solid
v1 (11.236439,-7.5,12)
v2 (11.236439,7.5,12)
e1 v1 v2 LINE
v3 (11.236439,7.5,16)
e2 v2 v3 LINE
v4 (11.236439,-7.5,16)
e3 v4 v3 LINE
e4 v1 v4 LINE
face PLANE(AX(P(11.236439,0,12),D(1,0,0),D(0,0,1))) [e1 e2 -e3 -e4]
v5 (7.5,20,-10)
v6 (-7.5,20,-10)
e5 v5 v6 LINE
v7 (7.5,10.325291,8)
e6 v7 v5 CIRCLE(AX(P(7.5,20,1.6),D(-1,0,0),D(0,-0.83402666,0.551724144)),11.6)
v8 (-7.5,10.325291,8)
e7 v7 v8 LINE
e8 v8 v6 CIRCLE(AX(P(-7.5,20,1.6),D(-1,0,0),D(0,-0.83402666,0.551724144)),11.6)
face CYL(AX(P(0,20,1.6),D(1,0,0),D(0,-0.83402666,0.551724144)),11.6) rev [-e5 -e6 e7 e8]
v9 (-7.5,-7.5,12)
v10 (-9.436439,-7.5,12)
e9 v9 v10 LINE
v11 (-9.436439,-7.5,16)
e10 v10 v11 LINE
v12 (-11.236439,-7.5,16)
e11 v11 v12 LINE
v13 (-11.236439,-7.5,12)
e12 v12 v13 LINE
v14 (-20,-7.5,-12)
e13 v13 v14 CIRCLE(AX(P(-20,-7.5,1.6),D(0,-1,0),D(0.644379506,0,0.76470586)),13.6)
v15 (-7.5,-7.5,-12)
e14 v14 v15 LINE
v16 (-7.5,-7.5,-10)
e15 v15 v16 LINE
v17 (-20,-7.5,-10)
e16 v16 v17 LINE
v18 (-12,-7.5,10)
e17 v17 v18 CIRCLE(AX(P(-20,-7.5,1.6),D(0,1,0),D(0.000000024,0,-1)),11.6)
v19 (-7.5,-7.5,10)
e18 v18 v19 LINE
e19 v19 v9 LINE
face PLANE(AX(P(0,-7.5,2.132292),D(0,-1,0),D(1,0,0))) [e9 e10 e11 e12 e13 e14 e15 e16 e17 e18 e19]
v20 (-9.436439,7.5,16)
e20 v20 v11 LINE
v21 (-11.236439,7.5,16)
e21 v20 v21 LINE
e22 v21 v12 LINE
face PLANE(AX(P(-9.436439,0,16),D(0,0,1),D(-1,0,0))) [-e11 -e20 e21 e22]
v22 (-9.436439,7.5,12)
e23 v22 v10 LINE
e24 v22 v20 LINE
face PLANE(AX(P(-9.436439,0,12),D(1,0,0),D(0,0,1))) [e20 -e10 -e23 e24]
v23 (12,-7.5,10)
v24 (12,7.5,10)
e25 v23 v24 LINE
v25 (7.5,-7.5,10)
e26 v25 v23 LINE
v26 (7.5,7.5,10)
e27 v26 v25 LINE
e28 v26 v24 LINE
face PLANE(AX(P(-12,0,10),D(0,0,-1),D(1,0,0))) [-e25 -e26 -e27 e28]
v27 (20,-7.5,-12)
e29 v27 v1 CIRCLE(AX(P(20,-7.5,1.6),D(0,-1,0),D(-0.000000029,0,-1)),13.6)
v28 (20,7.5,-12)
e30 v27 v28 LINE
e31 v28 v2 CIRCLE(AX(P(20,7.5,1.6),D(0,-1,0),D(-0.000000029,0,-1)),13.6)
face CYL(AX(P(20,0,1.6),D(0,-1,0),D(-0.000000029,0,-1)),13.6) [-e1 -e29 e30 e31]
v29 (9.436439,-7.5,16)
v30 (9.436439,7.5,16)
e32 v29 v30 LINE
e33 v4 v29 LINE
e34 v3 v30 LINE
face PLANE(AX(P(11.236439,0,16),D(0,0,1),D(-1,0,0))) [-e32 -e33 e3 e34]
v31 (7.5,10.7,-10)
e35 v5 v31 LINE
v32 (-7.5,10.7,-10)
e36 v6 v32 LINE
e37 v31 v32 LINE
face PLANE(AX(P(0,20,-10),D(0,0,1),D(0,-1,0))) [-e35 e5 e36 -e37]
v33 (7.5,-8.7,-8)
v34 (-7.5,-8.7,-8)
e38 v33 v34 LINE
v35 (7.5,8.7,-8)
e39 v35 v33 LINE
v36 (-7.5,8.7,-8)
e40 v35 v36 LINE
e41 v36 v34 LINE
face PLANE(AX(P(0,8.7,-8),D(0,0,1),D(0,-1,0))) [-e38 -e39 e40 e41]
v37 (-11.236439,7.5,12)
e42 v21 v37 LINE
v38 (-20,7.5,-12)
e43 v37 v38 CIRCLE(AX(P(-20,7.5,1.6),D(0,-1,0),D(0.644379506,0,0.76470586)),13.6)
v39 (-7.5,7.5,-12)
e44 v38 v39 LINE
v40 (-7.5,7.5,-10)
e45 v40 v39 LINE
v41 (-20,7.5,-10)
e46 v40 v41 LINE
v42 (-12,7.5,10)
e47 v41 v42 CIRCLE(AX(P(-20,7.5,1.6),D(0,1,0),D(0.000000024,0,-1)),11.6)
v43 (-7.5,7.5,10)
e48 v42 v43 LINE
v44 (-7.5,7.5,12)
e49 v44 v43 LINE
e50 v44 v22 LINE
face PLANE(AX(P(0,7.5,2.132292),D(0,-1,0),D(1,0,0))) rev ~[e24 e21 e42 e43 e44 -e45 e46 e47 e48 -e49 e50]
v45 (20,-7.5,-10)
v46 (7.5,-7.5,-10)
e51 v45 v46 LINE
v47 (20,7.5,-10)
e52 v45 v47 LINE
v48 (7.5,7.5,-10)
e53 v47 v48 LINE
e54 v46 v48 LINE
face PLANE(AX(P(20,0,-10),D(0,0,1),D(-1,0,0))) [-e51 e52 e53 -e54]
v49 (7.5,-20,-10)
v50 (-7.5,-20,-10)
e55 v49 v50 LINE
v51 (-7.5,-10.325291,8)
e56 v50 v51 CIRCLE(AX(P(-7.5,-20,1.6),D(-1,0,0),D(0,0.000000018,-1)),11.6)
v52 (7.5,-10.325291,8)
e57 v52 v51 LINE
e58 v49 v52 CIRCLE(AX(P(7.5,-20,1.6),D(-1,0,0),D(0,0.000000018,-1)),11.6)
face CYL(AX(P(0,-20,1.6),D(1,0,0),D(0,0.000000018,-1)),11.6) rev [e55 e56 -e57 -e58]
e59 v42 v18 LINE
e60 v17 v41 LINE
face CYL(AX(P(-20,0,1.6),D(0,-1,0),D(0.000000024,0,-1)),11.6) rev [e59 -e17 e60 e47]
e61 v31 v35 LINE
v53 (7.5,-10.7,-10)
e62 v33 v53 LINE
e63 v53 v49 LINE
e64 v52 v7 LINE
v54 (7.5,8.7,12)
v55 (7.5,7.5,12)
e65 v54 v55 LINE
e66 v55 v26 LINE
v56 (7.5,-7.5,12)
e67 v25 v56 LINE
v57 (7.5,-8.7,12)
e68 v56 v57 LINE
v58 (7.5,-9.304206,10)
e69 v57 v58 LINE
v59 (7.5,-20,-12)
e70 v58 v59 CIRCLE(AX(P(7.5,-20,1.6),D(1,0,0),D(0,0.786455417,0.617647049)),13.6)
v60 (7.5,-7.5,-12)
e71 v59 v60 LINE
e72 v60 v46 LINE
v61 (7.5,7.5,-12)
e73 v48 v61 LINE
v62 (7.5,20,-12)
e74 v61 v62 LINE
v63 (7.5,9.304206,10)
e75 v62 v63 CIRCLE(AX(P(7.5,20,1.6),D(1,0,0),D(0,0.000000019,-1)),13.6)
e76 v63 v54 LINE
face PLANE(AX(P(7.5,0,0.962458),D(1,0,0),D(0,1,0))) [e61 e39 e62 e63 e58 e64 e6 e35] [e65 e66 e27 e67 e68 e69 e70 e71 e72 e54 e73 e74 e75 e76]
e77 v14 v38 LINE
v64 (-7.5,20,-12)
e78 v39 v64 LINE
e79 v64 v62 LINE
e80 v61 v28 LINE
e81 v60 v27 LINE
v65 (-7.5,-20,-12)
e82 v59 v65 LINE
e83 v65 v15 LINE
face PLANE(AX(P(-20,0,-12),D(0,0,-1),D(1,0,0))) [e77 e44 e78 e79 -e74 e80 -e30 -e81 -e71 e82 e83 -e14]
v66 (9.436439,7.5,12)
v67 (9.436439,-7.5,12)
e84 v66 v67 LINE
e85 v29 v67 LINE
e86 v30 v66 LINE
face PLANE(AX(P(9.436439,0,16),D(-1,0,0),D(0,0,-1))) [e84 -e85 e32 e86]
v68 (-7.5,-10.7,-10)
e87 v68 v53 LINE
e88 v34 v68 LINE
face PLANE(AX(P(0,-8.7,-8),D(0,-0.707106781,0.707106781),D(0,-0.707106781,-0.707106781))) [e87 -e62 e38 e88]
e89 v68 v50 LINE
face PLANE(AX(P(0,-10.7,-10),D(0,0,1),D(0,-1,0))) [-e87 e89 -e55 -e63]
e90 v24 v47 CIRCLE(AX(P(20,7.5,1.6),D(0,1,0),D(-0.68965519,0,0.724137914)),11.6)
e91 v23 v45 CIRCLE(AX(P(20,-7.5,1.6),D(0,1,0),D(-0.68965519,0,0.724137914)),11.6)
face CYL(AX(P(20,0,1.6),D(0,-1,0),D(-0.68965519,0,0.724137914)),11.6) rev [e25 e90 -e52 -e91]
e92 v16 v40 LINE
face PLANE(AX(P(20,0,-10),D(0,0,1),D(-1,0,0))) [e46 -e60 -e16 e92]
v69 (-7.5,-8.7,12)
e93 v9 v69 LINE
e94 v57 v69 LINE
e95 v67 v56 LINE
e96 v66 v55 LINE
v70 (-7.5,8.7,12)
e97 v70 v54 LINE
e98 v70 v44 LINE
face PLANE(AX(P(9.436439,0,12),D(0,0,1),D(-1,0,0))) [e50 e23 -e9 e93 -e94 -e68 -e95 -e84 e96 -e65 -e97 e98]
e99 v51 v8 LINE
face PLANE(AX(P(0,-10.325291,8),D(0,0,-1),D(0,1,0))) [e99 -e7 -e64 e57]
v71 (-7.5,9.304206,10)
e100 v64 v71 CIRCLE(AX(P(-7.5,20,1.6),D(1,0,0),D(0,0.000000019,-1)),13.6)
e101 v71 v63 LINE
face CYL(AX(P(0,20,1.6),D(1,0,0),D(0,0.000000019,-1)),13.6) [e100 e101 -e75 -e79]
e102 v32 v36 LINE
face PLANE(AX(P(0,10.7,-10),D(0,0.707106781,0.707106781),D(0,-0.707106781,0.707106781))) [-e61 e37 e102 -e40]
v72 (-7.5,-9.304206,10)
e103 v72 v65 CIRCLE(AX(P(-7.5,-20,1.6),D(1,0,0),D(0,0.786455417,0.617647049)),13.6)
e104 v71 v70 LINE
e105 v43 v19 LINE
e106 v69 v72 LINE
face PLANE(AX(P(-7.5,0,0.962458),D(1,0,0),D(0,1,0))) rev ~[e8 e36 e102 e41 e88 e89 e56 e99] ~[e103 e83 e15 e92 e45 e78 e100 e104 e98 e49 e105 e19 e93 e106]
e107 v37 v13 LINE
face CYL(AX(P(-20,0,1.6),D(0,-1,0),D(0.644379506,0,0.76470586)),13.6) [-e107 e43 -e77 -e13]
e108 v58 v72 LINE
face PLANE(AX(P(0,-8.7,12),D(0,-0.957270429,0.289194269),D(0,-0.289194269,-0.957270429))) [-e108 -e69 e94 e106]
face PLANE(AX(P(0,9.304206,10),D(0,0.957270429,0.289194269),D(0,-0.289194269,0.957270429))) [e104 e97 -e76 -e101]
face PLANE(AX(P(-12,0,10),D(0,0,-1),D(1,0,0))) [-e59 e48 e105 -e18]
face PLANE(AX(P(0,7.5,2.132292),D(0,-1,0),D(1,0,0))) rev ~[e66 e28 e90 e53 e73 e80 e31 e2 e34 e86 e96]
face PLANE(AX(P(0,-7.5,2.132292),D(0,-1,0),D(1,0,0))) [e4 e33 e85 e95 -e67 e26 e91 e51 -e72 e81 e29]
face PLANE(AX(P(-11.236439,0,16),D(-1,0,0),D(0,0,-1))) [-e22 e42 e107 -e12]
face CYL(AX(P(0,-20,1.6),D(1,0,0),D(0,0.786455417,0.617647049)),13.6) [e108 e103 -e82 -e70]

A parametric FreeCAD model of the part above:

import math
import FreeCAD as App
import Part
import Sketcher

doc = App.newDocument("Part")
body = doc.addObject("PartDesign::Body", "Body")

# Sketch on XZ plane
sketch1 = body.newObject("Sketcher::SketchObject", "Sketch")
sketch1.AttachmentSupport = (doc.getObject("XZ_Plane"), [""])
sketch1.MapMode = "FlatFace"
sketch1.addGeometry([
    Part.LineSegment(App.Vector(9.4, 16, 0), App.Vector(9.4, 12, 0)),  # 0
    Part.LineSegment(App.Vector(9.4, 12, 0), App.Vector(-9.4, 12, 0)),  # 1
    Part.LineSegment(App.Vector(-9.4, 12, 0), App.Vector(-9.4, 16, 0)),  # 2
    Part.LineSegment(App.Vector(-9.4, 16, 0), App.Vector(-11.2, 16, 0)),  # 3
    Part.LineSegment(App.Vector(-11.2, 16, 0), App.Vector(-11.2, 12, 0)),  # 4
    Part.ArcOfCircle(Part.Circle(App.Vector(-20, 1.6, 0), App.Vector(0, 0, 1), 13.6), math.radians(50), math.radians(270)),  # 5
    Part.LineSegment(App.Vector(-20, -12, 0), App.Vector(20, -12, 0)),  # 6
    Part.ArcOfCircle(Part.Circle(App.Vector(20, 1.6, 0), App.Vector(0, 0, 1), 13.6), math.radians(-90), math.radians(130)),  # 7
    Part.LineSegment(App.Vector(11.2, 12, 0), App.Vector(11.2, 16, 0)),  # 8
    Part.LineSegment(App.Vector(11.2, 16, 0), App.Vector(9.4, 16, 0)),  # 9
    Part.ArcOfCircle(Part.Circle(App.Vector(-20, 1.6, 0), App.Vector(0, 0, 1), 11.6), math.radians(46), math.radians(270)),  # 10
    Part.LineSegment(App.Vector(-12, 10, 0), App.Vector(12, 10, 0)),  # 11
    Part.ArcOfCircle(Part.Circle(App.Vector(20, 1.6, 0), App.Vector(0, 0, 1), 11.6), math.radians(-90), math.radians(134)),  # 12
    Part.LineSegment(App.Vector(20, -10, 0), App.Vector(-20, -10, 0)),  # 13
], False)
sketch1.addConstraint([
    Sketcher.Constraint("Coincident", 0, 2, 1, 1),
    Sketcher.Constraint("Coincident", 1, 2, 2, 1),
    Sketcher.Constraint("Coincident", 2, 2, 3, 1),
    Sketcher.Constraint("Coincident", 3, 2, 4, 1),
    Sketcher.Constraint("Coincident", 4, 2, 5, 1),
    Sketcher.Constraint("Tangent", 5, 2, 6, 1),
    Sketcher.Constraint("Tangent", 6, 2, 7, 1),
    Sketcher.Constraint("Coincident", 7, 2, 8, 1),
    Sketcher.Constraint("Coincident", 8, 2, 9, 1),
    Sketcher.Constraint("Coincident", 9, 2, 0, 1),
    Sketcher.Constraint("Coincident", 10, 1, 11, 1),
    Sketcher.Constraint("Coincident", 11, 2, 12, 2),
    Sketcher.Constraint("Tangent", 12, 1, 13, 1),
    Sketcher.Constraint("Tangent", 13, 2, 10, 2),
    Sketcher.Constraint("Vertical", 0),
    Sketcher.Constraint("Horizontal", 1),
    Sketcher.Constraint("Vertical", 2),
    Sketcher.Constraint("Horizontal", 3),
    Sketcher.Constraint("Vertical", 4),
    Sketcher.Constraint("Horizontal", 6),
    Sketcher.Constraint("Vertical", 8),
    Sketcher.Constraint("Horizontal", 9),
    Sketcher.Constraint("Horizontal", 11),
    Sketcher.Constraint("Horizontal", 13),
    Sketcher.Constraint("Coincident", 10, 3, 5, 3),
    Sketcher.Constraint("Coincident", 12, 3, 7, 3),
    Sketcher.Constraint("Equal", 5, 7),
    Sketcher.Constraint("Symmetric", 4, 2, 7, 2, -2),
    Sketcher.Constraint("Symmetric", 2, 2, 9, 2, -2),
    Sketcher.Constraint("Horizontal", 1, 2, 4, 2),
    Sketcher.Constraint("Radius", 5, 13.6),
    Sketcher.Constraint("Radius", 10, 11.6),
    Sketcher.Constraint("DistanceX", 6, 1, 6, 2, 40.0),
    Sketcher.Constraint("DistanceX", 11, 1, 11, 2, 24.0),
    Sketcher.Constraint("DistanceY", 0, 2, 0, 1, 4.0),
    Sketcher.Constraint("DistanceX", 3, 2, 3, 1, 1.8),
    Sketcher.Constraint("DistanceY", -1, 1, 0, 2, 12.0),
    Sketcher.Constraint("DistanceY", 5, 2, -1, 1, 12.0),
])
pad1 = body.newObject("PartDesign::Pad", "Pad")
pad1.Profile = sketch1
pad1.Length = 15
pad1.Midplane = True

# Sketch on YZ plane
sketch2 = body.newObject("Sketcher::SketchObject", "Sketch001")
sketch2.AttachmentSupport = (doc.getObject("YZ_Plane"), [""])
sketch2.MapMode = "FlatFace"
sketch2.addGeometry([
    Part.LineSegment(App.Vector(-7.5, -10, 0), App.Vector(7.5, -10, 0)),  # 0
    Part.LineSegment(App.Vector(7.5, -10, 0), App.Vector(7.5, -12, 0)),  # 1
    Part.LineSegment(App.Vector(7.5, -12, 0), App.Vector(20, -12, 0)),  # 2
    Part.ArcOfCircle(Part.Circle(App.Vector(20, 1.6, 0), App.Vector(0, 0, 1), 13.6), math.radians(-90), math.radians(142)),  # 3
    Part.LineSegment(App.Vector(9.3, 10, 0), App.Vector(8.7, 12, 0)),  # 4
    Part.LineSegment(App.Vector(8.7, 12, 0), App.Vector(7.5, 12, 0)),  # 5
    Part.LineSegment(App.Vector(7.5, 12, 0), App.Vector(7.5, 10, 0)),  # 6
    Part.LineSegment(App.Vector(7.5, 10, 0), App.Vector(-7.5, 10, 0)),  # 7
    Part.LineSegment(App.Vector(-7.5, 10, 0), App.Vector(-7.5, 12, 0)),  # 8
    Part.LineSegment(App.Vector(-7.5, 12, 0), App.Vector(-8.7, 12, 0)),  # 9
    Part.LineSegment(App.Vector(-8.7, 12, 0), App.Vector(-9.3, 10, 0)),  # 10
    Part.ArcOfCircle(Part.Circle(App.Vector(-20, 1.6, 0), App.Vector(0, 0, 1), 13.6), math.radians(38), math.radians(270)),  # 11
    Part.LineSegment(App.Vector(-20, -12, 0), App.Vector(-7.5, -12, 0)),  # 12
    Part.LineSegment(App.Vector(-7.5, -12, 0), App.Vector(-7.5, -10, 0)),  # 13
    Part.LineSegment(App.Vector(-8.7, -8, 0), App.Vector(-10.7, -10, 0)),  # 14
    Part.LineSegment(App.Vector(-10.7, -10, 0), App.Vector(-20, -10, 0)),  # 15
    Part.ArcOfCircle(Part.Circle(App.Vector(-20, 1.6, 0), App.Vector(0, 0, 1), 11.6), math.radians(33), math.radians(270)),  # 16
    Part.LineSegment(App.Vector(-10.3, 8, 0), App.Vector(10.3, 8, 0)),  # 17
    Part.ArcOfCircle(Part.Circle(App.Vector(20, 1.6, 0), App.Vector(0, 0, 1), 11.6), math.radians(-90), math.radians(147)),  # 18
    Part.LineSegment(App.Vector(20, -10, 0), App.Vector(10.7, -10, 0)),  # 19
    Part.LineSegment(App.Vector(10.7, -10, 0), App.Vector(8.7, -8, 0)),  # 20
    Part.LineSegment(App.Vector(8.7, -8, 0), App.Vector(-8.7, -8, 0)),  # 21
], False)
sketch2.addConstraint([
    Sketcher.Constraint("Coincident", 0, 2, 1, 1),
    Sketcher.Constraint("Coincident", 1, 2, 2, 1),
    Sketcher.Constraint("Tangent", 2, 2, 3, 1),
    Sketcher.Constraint("Coincident", 3, 2, 4, 1),
    Sketcher.Constraint("Coincident", 4, 2, 5, 1),
    Sketcher.Constraint("Coincident", 5, 2, 6, 1),
    Sketcher.Constraint("Coincident", 6, 2, 7, 1),
    Sketcher.Constraint("Coincident", 7, 2, 8, 1),
    Sketcher.Constraint("Coincident", 8, 2, 9, 1),
    Sketcher.Constraint("Coincident", 9, 2, 10, 1),
    Sketcher.Constraint("Coincident", 10, 2, 11, 1),
    Sketcher.Constraint("Tangent", 11, 2, 12, 1),
    Sketcher.Constraint("Coincident", 12, 2, 13, 1),
    Sketcher.Constraint("Coincident", 13, 2, 0, 1),
    Sketcher.Constraint("Coincident", 14, 2, 15, 1),
    Sketcher.Constraint("Tangent", 15, 2, 16, 2),
    Sketcher.Constraint("Coincident", 16, 1, 17, 1),
    Sketcher.Constraint("Coincident", 17, 2, 18, 2),
    Sketcher.Constraint("Tangent", 18, 1, 19, 1),
    Sketcher.Constraint("Coincident", 19, 2, 20, 1),
    Sketcher.Constraint("Coincident", 20, 2, 21, 1),
    Sketcher.Constraint("Coincident", 21, 2, 14, 1),
    Sketcher.Constraint("Horizontal", 0),
    Sketcher.Constraint("Vertical", 1),
    Sketcher.Constraint("Horizontal", 2),
    Sketcher.Constraint("Horizontal", 5),
    Sketcher.Constraint("Vertical", 6),
    Sketcher.Constraint("Horizontal", 7),
    Sketcher.Constraint("Vertical", 8),
    Sketcher.Constraint("Horizontal", 9),
    Sketcher.Constraint("Horizontal", 12),
    Sketcher.Constraint("Vertical", 13),
    Sketcher.Constraint("Horizontal", 15),
    Sketcher.Constraint("Horizontal", 17),
    Sketcher.Constraint("Horizontal", 19),
    Sketcher.Constraint("Horizontal", 21),
    Sketcher.Constraint("Coincident", 16, 3, 11, 3),
    Sketcher.Constraint("Coincident", 18, 3, 3, 3),
    Sketcher.Constraint("Equal", 3, 11),
    Sketcher.Constraint("Equal", 16, 18),
    Sketcher.Constraint("Symmetric", 0, 2, 7, 2, -1, 1),
    Sketcher.Constraint("Symmetric", 5, 2, 12, 2, -1, 1),
    Sketcher.Constraint("Symmetric", 3, 3, 11, 3, -2),
    Sketcher.Constraint("Symmetric", 5, 2, 8, 2, -2),
    Sketcher.Constraint("Perpendicular", 14, 20),
    Sketcher.Constraint("Horizontal", 3, 2, 6, 2),
    Sketcher.Constraint("Horizontal", 7, 2, 10, 2),
    Sketcher.Constraint("Horizontal", 13, 2, 14, 2),
    Sketcher.Constraint("Vertical", 4, 2, 20, 2),
    Sketcher.Constraint("Vertical", 9, 2, 21, 2),
    Sketcher.Constraint("Equal", 5, 9),
    Sketcher.Constraint("Equal", 15, 19),
    Sketcher.Constraint("Radius", 3, 13.6),
    Sketcher.Constraint("Radius", 16, 11.6),
    Sketcher.Constraint("DistanceX", 0, 1, 0, 2, 15.0),
    Sketcher.Constraint("DistanceX", 2, 1, 2, 2, 12.5),
    Sketcher.Constraint("DistanceX", 5, 2, 5, 1, 1.2),
    Sketcher.Constraint("DistanceX", 15, 2, 15, 1, 9.3),
    Sketcher.Constraint("DistanceY", 0, 2, -1, 1, 10.0),
    Sketcher.Constraint("DistanceY", -1, 1, 16, 1, 8.0),
])
pad2 = body.newObject("PartDesign::Pad", "Pad001")
pad2.Profile = sketch2
pad2.Length = 15
pad2.Midplane = True

doc.recompute()
